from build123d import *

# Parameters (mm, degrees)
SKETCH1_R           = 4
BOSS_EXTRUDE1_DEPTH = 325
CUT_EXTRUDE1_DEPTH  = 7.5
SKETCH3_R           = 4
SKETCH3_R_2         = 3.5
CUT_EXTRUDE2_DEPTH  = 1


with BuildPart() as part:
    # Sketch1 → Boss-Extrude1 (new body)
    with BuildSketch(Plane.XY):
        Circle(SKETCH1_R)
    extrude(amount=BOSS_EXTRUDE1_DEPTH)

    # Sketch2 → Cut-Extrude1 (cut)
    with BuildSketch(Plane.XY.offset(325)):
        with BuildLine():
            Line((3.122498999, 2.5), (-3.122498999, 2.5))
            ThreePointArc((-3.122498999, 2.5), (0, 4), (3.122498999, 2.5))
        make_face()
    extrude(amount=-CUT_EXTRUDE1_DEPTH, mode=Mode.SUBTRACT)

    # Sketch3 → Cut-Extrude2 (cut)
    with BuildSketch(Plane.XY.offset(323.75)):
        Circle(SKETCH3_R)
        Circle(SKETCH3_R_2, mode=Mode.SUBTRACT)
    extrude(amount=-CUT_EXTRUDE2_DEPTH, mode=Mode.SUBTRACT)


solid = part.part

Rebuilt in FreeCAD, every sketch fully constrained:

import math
import FreeCAD as App
import Part
import Sketcher
Q = App.Units.Quantity

doc = App.newDocument("Part")
body = doc.addObject("PartDesign::Body", "Body")

# Sketch on XY plane
sketch1 = body.newObject("Sketcher::SketchObject", "Sketch")
sketch1.AttachmentSupport = (doc.getObject("XY_Plane"), [""])
sketch1.MapMode = "FlatFace"
sketch1.addGeometry(Part.Circle(App.Vector(0, 0, 0), App.Vector(0, 0, 1), 4), False)
sketch1.addConstraint([
    Sketcher.Constraint("Coincident", 0, 3, -1, 1),
    Sketcher.Constraint("Diameter", 0, Q("8 mm")),
])
pad1 = body.newObject("PartDesign::Pad", "Pad")
pad1.Profile = sketch1
pad1.Length = 325

# Sketch on XY plane
sketch2 = body.newObject("Sketcher::SketchObject", "Sketch001")
sketch2.AttachmentSupport = (doc.getObject("XY_Plane"), [""])
sketch2.MapMode = "FlatFace"
sketch2.AttachmentOffset = App.Placement(App.Vector(0, 0, 325), App.Rotation())
sketch2.addGeometry([
    Part.LineSegment(App.Vector(-3.1, 2.5, 0), App.Vector(3.1, 2.5, 0)),
    Part.ArcOfCircle(Part.Circle(App.Vector(0, 0, 0), App.Vector(0, 0, 1), 4), math.radians(39), math.radians(141)),
], False)
sketch2.addConstraint([
    Sketcher.Constraint("Coincident", 0, 1, 1, 2),
    Sketcher.Constraint("Coincident", 1, 1, 0, 2),
    Sketcher.Constraint("Horizontal", 0),
    Sketcher.Constraint("Coincident", 1, 3, -1, 1),
    Sketcher.Constraint("Radius", 1, Q("4 mm")),
    Sketcher.Constraint("DistanceY", -1, 1, 0, 1, Q("2.5 mm")),
])
pocket1 = body.newObject("PartDesign::Pocket", "Pocket")
pocket1.Profile = sketch2
pocket1.Length = 7.5

# Sketch on XY plane
sketch3 = body.newObject("Sketcher::SketchObject", "Sketch002")
sketch3.AttachmentSupport = (doc.getObject("XY_Plane"), [""])
sketch3.MapMode = "FlatFace"
sketch3.AttachmentOffset = App.Placement(App.Vector(0, 0, 323.75), App.Rotation())
sketch3.addGeometry([
    Part.Circle(App.Vector(0, 0, 0), App.Vector(0, 0, 1), 4),
    Part.Circle(App.Vector(0, 0, 0), App.Vector(0, 0, 1), 3.5),
], False)
sketch3.addConstraint([
    Sketcher.Constraint("Coincident", 0, 3, -1, 1),
    Sketcher.Constraint("Coincident", 1, 3, -1, 1),
    Sketcher.Constraint("Diameter", 0, Q("8 mm")),
    Sketcher.Constraint("Diameter", 1, Q("7 mm")),
])
pocket2 = body.newObject("PartDesign::Pocket", "Pocket001")
pocket2.Profile = sketch3
pocket2.Length = 1

doc.recompute()
